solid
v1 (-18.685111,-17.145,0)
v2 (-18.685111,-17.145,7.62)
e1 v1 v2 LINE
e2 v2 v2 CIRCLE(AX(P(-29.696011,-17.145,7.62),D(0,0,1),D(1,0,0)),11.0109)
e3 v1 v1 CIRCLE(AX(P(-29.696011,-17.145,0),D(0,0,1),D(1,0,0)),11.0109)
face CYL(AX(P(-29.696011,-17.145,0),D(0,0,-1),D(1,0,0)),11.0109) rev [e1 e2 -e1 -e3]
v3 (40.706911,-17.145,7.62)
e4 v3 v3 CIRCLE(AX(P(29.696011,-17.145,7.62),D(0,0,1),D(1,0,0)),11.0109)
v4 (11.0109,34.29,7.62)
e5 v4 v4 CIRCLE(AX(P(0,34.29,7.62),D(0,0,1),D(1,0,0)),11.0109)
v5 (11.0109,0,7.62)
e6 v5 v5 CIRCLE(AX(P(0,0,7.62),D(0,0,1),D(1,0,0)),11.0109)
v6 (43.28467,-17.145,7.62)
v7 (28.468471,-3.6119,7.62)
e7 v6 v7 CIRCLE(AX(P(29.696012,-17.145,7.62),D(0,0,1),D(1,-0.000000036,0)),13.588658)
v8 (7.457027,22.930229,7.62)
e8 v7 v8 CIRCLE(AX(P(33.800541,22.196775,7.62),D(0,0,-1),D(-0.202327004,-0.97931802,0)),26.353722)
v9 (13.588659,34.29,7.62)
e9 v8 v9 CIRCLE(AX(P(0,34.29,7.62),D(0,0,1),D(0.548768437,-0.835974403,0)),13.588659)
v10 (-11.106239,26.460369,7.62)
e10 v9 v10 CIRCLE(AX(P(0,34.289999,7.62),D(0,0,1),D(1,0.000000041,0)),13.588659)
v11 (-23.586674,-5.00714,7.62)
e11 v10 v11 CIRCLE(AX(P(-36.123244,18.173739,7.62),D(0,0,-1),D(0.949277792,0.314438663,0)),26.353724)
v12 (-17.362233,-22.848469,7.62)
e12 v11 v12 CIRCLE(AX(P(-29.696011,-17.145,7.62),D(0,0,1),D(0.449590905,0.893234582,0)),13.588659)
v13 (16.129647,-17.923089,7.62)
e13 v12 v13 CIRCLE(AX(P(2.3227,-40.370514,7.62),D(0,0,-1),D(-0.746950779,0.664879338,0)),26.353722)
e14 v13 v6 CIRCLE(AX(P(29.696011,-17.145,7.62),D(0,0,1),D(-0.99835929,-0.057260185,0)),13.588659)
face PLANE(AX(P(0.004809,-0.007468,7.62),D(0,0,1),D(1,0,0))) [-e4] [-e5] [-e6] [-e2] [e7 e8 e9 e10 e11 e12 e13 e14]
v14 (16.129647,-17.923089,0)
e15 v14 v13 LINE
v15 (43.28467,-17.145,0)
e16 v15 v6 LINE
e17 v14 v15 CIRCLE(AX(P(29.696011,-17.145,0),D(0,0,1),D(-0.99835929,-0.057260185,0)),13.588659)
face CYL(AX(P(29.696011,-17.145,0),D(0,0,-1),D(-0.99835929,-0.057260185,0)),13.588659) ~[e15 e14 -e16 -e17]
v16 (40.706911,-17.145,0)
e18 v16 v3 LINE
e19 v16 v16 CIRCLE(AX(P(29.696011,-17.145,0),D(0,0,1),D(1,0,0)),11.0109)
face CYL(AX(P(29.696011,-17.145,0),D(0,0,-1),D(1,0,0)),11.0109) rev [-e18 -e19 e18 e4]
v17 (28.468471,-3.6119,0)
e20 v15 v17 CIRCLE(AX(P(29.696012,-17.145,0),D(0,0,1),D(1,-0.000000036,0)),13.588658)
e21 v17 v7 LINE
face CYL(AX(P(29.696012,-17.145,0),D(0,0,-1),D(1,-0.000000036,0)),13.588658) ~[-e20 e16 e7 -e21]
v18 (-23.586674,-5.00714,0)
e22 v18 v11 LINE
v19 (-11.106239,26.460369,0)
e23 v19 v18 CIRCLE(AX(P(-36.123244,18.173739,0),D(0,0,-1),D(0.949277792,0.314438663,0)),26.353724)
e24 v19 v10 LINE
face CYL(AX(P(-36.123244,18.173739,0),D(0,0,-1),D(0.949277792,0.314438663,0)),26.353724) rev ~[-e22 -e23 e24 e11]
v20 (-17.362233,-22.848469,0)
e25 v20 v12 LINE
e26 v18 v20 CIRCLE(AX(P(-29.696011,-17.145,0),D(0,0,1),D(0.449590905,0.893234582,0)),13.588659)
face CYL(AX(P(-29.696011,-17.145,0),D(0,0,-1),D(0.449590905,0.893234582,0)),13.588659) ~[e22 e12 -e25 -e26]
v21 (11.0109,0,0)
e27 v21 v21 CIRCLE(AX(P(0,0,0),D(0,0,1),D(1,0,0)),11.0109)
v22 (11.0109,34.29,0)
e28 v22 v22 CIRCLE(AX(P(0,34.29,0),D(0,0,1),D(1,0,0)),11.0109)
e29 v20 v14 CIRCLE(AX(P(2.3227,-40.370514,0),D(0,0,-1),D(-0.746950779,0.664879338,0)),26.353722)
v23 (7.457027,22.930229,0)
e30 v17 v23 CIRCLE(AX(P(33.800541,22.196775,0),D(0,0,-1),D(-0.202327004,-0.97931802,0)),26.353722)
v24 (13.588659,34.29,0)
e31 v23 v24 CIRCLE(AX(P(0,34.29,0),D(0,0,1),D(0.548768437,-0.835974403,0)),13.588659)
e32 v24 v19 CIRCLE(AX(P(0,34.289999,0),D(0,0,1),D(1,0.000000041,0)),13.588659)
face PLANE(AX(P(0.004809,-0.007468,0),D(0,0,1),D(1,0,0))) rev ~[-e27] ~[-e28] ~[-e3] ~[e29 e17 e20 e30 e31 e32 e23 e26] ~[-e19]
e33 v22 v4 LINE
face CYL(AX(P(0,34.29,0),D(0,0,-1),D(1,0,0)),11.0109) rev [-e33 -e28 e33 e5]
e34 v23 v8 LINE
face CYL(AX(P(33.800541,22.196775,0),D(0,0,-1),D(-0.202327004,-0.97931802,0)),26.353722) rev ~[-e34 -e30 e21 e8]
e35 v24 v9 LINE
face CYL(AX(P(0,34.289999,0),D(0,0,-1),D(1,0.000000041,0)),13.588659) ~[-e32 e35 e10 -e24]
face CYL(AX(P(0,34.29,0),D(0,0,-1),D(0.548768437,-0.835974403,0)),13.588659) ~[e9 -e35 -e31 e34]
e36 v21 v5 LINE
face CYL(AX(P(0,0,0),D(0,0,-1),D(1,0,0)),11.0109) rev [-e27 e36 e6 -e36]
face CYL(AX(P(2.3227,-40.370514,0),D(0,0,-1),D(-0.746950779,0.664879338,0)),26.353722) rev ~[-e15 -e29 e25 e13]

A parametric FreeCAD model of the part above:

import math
import FreeCAD as App
import Part
import Sketcher
Q = App.Units.Quantity

doc = App.newDocument("Part")
params = doc.addObject("Spreadsheet::Sheet", "Params")
for row, (alias, value) in enumerate([
    ("sketch1_diameter", "0.867 in"),
    ("pad1_length", "0.3 in"),
], start=1):
    params.set(f"A{row}", alias)
    params.set(f"B{row}", "=" + value)
    params.setAlias(f"B{row}", alias)

body = doc.addObject("PartDesign::Body", "Body")

# Sketch on XY plane
sketch1 = doc.addObject("Sketcher::SketchObject", "Sketch")
body.addObject(sketch1)
sketch1.AttachmentSupport = (doc.XY_Plane, [""])
sketch1.MapMode = "FlatFace"
sketch1.addGeometry(Part.ArcOfCircle(Part.Circle(App.Vector(34, 22, 0), App.Vector(0, 0, 1), 26), math.radians(178), math.radians(258)), False)
sketch1.addGeometry(Part.ArcOfCircle(Part.Circle(App.Vector(0, 34, 0), App.Vector(0, 0, 1), 14), math.radians(-57), math.radians(0)), False)
sketch1.addGeometry(Part.ArcOfCircle(Part.Circle(App.Vector(0, 34, 0), App.Vector(0, 0, 1), 14), math.radians(0), math.radians(215)), False)
sketch1.addGeometry(Part.ArcOfCircle(Part.Circle(App.Vector(-36, 18, 0), App.Vector(0, 0, 1), 26), math.radians(-62), math.radians(18)), False)
sketch1.addGeometry(Part.ArcOfCircle(Part.Circle(App.Vector(-30, -17, 0), App.Vector(0, 0, 1), 14), math.radians(63), math.radians(335)), False)
sketch1.addGeometry(Part.ArcOfCircle(Part.Circle(App.Vector(2, -40, 0), App.Vector(0, 0, 1), 26), math.radians(58), math.radians(138)), False)
sketch1.addGeometry(Part.ArcOfCircle(Part.Circle(App.Vector(30, -17, 0), App.Vector(0, 0, 1), 14), math.radians(-177), math.radians(0)), False)
sketch1.addGeometry(Part.ArcOfCircle(Part.Circle(App.Vector(30, -17, 0), App.Vector(0, 0, 1), 14), math.radians(0), math.radians(95)), False)
sketch1.addGeometry(Part.Circle(App.Vector(-30, -17, 0), App.Vector(0, 0, 1), 11), False)
sketch1.addGeometry(Part.Circle(App.Vector(30, -17, 0), App.Vector(0, 0, 1), 11), False)
sketch1.addGeometry(Part.Circle(App.Vector(0, 0, 0), App.Vector(0, 0, 1), 11), False)
sketch1.addGeometry(Part.Circle(App.Vector(0, 34, 0), App.Vector(0, 0, 1), 11), False)
sketch1.addConstraint(Sketcher.Constraint("Coincident", 0, 1, 1, 1))
sketch1.addConstraint(Sketcher.Constraint("Tangent", 1, 2, 2, 1))
sketch1.addConstraint(Sketcher.Constraint("Coincident", 2, 2, 3, 2))
sketch1.addConstraint(Sketcher.Constraint("Coincident", 3, 1, 4, 1))
sketch1.addConstraint(Sketcher.Constraint("Coincident", 4, 2, 5, 2))
sketch1.addConstraint(Sketcher.Constraint("Coincident", 5, 1, 6, 1))
sketch1.addConstraint(Sketcher.Constraint("Tangent", 6, 2, 7, 1))
sketch1.addConstraint(Sketcher.Constraint("Coincident", 7, 2, 0, 2))
sketch1.addConstraint(Sketcher.Constraint("Coincident", 10, 3, -1, 1))
sketch1.addConstraint(Sketcher.Constraint("Coincident", 8, 3, 4, 3))
sketch1.addConstraint(Sketcher.Constraint("Coincident", 9, 3, 6, 3))
sketch1.addConstraint(Sketcher.Constraint("Coincident", 11, 3, 1, 3))
sketch1.addConstraint(Sketcher.Constraint("Equal", 1, 2))
sketch1.addConstraint(Sketcher.Constraint("Equal", 0, 3))
sketch1.addConstraint(Sketcher.Constraint("Equal", 2, 4))
sketch1.addConstraint(Sketcher.Constraint("Equal", 3, 5))
sketch1.addConstraint(Sketcher.Constraint("Equal", 4, 6))
sketch1.addConstraint(Sketcher.Constraint("Equal", 6, 7))
sketch1.addConstraint(Sketcher.Constraint("Equal", 8, 9))
sketch1.addConstraint(Sketcher.Constraint("Equal", 9, 10))
sketch1.addConstraint(Sketcher.Constraint("Equal", 10, 11))
sketch1.addConstraint(Sketcher.Constraint("Symmetric", 4, 3, 6, 3, -2))
sketch1.addConstraint(Sketcher.Constraint("PointOnObject", 1, 3, -2))
sketch1.addConstraint(Sketcher.Constraint("Horizontal", 11, 3, 1, 2))
sketch1.addConstraint(Sketcher.Constraint("Horizontal", 9, 3, 6, 2))
sketch1.addConstraint(Sketcher.Constraint("Diameter", 8, Q("0.867 in")))
sketch1.addConstraint(Sketcher.Constraint("DistanceY", -1, 1, 1, 3, Q("1.35 in")))
sketch1.addConstraint(Sketcher.Constraint("DistanceY", 4, 3, -1, 1, Q("0.675 in")))
sketch1.addConstraint(Sketcher.Constraint("Radius", 1, Q("13.588659 mm")))
sketch1.addConstraint(Sketcher.Constraint("Radius", 0, Q("26.353722 mm")))
sketch1.addConstraint(Sketcher.Constraint("DistanceX", -1, 1, 5, 3, Q("2.3227 mm")))
sketch1.addConstraint(Sketcher.Constraint("DistanceY", 7, 2, -1, 1, Q("3.6119 mm")))
sketch1.addConstraint(Sketcher.Constraint("DistanceX", -1, 1, 0, 3, Q("33.800541 mm")))
sketch1.addConstraint(Sketcher.Constraint("DistanceY", -1, 1, 3, 3, Q("18.173739 mm")))
sketch1.addConstraint(Sketcher.Constraint("DistanceX", 4, 3, -1, 1, Q("29.696011 mm")))
sketch1.addConstraint(Sketcher.Constraint("DistanceX", 2, 2, -1, 1, Q("11.106239 mm")))
sketch1.addConstraint(Sketcher.Constraint("DistanceY", 4, 2, -1, 1, Q("22.848469 mm")))
sketch1.setExpression("Constraints[25]", "Params.sketch1_diameter")
pad1 = doc.addObject("PartDesign::Pad", "Pad")
body.addObject(pad1)
pad1.Profile = sketch1
pad1.setExpression("Length", "Params.pad1_length")

doc.recompute()
